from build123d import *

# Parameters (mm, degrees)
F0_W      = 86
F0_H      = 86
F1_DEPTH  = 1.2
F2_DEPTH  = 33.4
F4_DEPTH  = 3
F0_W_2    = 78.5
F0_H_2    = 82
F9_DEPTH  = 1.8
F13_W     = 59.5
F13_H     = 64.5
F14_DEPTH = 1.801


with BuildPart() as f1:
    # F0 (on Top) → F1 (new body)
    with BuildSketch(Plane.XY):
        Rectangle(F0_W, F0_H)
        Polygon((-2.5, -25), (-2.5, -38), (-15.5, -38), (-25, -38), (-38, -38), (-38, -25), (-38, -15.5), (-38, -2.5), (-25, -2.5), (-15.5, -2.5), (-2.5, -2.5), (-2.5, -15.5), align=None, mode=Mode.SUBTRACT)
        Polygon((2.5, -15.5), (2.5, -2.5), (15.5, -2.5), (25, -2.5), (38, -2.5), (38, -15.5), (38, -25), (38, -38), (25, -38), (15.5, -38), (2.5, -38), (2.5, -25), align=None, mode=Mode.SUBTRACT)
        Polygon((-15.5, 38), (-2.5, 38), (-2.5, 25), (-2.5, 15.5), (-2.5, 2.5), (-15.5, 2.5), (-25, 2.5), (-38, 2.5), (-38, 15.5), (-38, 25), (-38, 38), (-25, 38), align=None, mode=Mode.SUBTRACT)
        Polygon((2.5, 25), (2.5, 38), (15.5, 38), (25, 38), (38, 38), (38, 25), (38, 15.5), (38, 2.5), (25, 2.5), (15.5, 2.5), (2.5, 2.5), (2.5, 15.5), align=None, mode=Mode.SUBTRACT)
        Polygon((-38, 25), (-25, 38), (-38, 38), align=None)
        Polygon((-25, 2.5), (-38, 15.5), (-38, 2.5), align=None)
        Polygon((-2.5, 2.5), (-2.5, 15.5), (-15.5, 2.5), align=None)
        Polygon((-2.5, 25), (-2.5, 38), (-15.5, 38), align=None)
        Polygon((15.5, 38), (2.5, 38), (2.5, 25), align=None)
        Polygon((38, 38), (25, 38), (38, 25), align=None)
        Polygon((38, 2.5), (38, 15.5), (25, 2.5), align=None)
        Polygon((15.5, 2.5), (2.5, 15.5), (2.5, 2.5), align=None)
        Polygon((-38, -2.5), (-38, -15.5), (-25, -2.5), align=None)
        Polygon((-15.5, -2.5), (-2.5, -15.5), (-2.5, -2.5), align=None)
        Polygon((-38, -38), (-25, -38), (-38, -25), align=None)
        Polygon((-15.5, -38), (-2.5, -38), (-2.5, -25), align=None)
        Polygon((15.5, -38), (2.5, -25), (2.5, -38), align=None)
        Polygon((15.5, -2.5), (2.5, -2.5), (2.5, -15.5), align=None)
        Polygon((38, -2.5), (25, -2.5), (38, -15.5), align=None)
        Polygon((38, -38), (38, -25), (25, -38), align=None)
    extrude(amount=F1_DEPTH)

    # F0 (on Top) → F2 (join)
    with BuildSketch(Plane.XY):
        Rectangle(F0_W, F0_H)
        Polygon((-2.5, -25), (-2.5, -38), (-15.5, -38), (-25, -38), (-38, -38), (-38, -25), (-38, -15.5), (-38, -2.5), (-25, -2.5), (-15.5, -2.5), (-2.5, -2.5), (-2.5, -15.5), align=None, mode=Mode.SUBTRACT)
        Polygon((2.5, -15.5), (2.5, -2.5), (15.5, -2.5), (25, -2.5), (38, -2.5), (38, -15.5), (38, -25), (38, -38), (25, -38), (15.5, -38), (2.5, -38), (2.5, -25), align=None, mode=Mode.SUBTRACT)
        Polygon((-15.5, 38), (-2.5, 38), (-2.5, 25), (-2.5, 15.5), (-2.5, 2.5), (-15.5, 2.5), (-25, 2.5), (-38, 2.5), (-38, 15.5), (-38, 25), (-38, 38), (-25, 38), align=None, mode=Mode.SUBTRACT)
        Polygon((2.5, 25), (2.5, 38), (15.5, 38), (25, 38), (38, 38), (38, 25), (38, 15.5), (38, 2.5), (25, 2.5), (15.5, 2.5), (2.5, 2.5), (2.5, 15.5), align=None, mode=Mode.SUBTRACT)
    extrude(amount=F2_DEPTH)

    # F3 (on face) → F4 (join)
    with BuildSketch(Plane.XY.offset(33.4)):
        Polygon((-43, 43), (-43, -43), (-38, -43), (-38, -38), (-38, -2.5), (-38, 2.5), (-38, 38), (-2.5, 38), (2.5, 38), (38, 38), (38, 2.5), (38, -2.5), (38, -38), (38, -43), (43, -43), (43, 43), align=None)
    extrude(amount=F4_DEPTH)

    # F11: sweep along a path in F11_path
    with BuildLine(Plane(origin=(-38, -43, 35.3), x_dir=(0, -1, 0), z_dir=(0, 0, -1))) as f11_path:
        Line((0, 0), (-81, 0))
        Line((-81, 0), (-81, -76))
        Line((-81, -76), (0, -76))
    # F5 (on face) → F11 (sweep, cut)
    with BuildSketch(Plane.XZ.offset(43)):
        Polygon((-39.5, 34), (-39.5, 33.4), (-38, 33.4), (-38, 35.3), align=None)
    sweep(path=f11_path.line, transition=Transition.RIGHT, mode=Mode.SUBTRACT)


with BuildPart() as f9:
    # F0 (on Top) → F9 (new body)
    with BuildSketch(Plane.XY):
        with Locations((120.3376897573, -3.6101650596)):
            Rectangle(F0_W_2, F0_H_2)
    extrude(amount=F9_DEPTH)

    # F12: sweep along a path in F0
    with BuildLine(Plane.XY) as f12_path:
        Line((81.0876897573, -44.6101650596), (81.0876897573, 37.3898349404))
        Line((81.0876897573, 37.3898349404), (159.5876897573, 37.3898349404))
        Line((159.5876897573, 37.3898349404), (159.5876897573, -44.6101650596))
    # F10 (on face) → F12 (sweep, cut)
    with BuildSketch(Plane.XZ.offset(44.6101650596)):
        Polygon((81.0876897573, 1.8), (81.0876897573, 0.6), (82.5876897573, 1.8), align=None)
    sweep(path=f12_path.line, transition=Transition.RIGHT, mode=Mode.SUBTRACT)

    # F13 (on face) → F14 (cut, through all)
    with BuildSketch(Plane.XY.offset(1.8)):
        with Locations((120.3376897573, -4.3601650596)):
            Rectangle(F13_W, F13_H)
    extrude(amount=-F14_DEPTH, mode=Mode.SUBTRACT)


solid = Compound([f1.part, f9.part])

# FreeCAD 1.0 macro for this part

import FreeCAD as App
import Part
import Sketcher
from FreeCAD import Vector


def add_polygon(sketch, points):
    """Adds a closed chain of lines whose ends are joined by coincident constraints."""
    first, n = sketch.GeometryCount, len(points)
    for a, b in zip(points, points[1:] + points[:1]):
        sketch.addGeometry(Part.LineSegment(App.Vector(*a, 0), App.Vector(*b, 0)), False)
    for i in range(n):
        sketch.addConstraint(Sketcher.Constraint("Coincident", first + i, 2, first + (i + 1) % n, 1))

doc = App.newDocument("Part")
body = doc.addObject("PartDesign::Body", "Body")

# Sketch on XY plane
sketch1 = body.newObject("Sketcher::SketchObject", "Sketch")
sketch1.AttachmentSupport = (doc.getObject("XY_Plane"), [""])
sketch1.MapMode = "FlatFace"
add_polygon(sketch1, [(-43, 43), (-43, -43), (43, -43), (43, 43)])  # lines 0-3
add_polygon(sketch1, [(-2, -16), (-2, -25), (-16, -38), (-25, -38), (-38, -25), (-38, -16), (-25, -2), (-16, -2)])  # lines 4-11
add_polygon(sketch1, [(2, -25), (2, -16), (16, -2), (25, -2), (38, -16), (38, -25), (25, -38), (16, -38)])  # lines 12-19
add_polygon(sketch1, [(-25, 38), (-16, 38), (-2, 25), (-2, 16), (-16, 2), (-25, 2), (-38, 16), (-38, 25)])  # lines 20-27
add_polygon(sketch1, [(2, 16), (2, 25), (16, 38), (25, 38), (38, 25), (38, 16), (25, 2), (16, 2)])  # lines 28-35
sketch1.addConstraint([
    Sketcher.Constraint("Vertical", 0),
    Sketcher.Constraint("Horizontal", 1),
    Sketcher.Constraint("Vertical", 2),
    Sketcher.Constraint("Horizontal", 3),
    Sketcher.Constraint("Vertical", 4),
    Sketcher.Constraint("Horizontal", 6),
    Sketcher.Constraint("Vertical", 8),
    Sketcher.Constraint("Horizontal", 10),
    Sketcher.Constraint("Vertical", 12),
    Sketcher.Constraint("Horizontal", 14),
    Sketcher.Constraint("Vertical", 16),
    Sketcher.Constraint("Horizontal", 18),
    Sketcher.Constraint("Horizontal", 20),
    Sketcher.Constraint("Vertical", 22),
    Sketcher.Constraint("Horizontal", 24),
    Sketcher.Constraint("Vertical", 26),
    Sketcher.Constraint("Vertical", 28),
    Sketcher.Constraint("Horizontal", 30),
    Sketcher.Constraint("Vertical", 32),
    Sketcher.Constraint("Horizontal", 34),
    Sketcher.Constraint("Symmetric", 0, 2, 2, 2, -1, 1),
    Sketcher.Constraint("Symmetric", 18, 2, 20, 2, -1, 1),
    Sketcher.Constraint("Symmetric", 19, 2, 21, 2, -1, 1),
    Sketcher.Constraint("Symmetric", 13, 2, 23, 2, -1, 1),
    Sketcher.Constraint("Symmetric", 15, 2, 25, 2, -1, 1),
    Sketcher.Constraint("Symmetric", 4, 2, 28, 2, -1, 1),
    Sketcher.Constraint("Symmetric", 5, 2, 29, 2, -1, 1),
    Sketcher.Constraint("Symmetric", 7, 2, 31, 2, -1, 1),
    Sketcher.Constraint("Symmetric", 9, 2, 33, 2, -1, 1),
    Sketcher.Constraint("Symmetric", 11, 2, 12, 2, -2),
    Sketcher.Constraint("Symmetric", 10, 2, 13, 2, -2),
    Sketcher.Constraint("Symmetric", 8, 2, 15, 2, -2),
    Sketcher.Constraint("Symmetric", 6, 2, 17, 2, -2),
    Sketcher.Constraint("Perpendicular", 5, 7),
    Sketcher.Constraint("Perpendicular", 7, 9),
    Sketcher.Constraint("Perpendicular", 9, 11),
    Sketcher.Constraint("Perpendicular", 11, 13),
    Sketcher.Constraint("Perpendicular", 13, 15),
    Sketcher.Constraint("Perpendicular", 15, 17),
    Sketcher.Constraint("Perpendicular", 17, 19),
    Sketcher.Constraint("Perpendicular", 21, 23),
    Sketcher.Constraint("Perpendicular", 23, 25),
    Sketcher.Constraint("Perpendicular", 25, 27),
    Sketcher.Constraint("Perpendicular", 29, 31),
    Sketcher.Constraint("Perpendicular", 31, 33),
    Sketcher.Constraint("Perpendicular", 33, 35),
    Sketcher.Constraint("Horizontal", 4, 2, 7, 2),
    Sketcher.Constraint("Horizontal", 8, 2, 11, 2),
    Sketcher.Constraint("Horizontal", 16, 2, 19, 2),
    Sketcher.Constraint("Horizontal", 21, 2, 26, 2),
    Sketcher.Constraint("Horizontal", 32, 2, 35, 2),
    Sketcher.Constraint("Vertical", 6, 2, 9, 2),
    Sketcher.Constraint("Equal", 3, 0),
    Sketcher.Constraint("Equal", 34, 4),
    Sketcher.Constraint("DistanceX", 1, 1, 1, 2, 86.0),
    Sketcher.Constraint("DistanceX", 6, 2, 6, 1, 9.5),
    Sketcher.Constraint("DistanceY", 4, 2, -1, 1, 25.0),
    Sketcher.Constraint("DistanceY", 5, 2, -1, 1, 38.0),
    Sketcher.Constraint("DistanceX", 6, 2, -1, 1, 25.0),
])
pad1 = body.newObject("PartDesign::Pad", "Pad")
pad1.Profile = sketch1
pad1.Length = 1.2

# Sketch on XY plane
sketch2 = body.newObject("Sketcher::SketchObject", "Sketch001")
sketch2.AttachmentSupport = (doc.getObject("XY_Plane"), [""])
sketch2.MapMode = "FlatFace"
add_polygon(sketch2, [(-43, 43), (-43, -43), (43, -43), (43, 43)])  # lines 0-3
add_polygon(sketch2, [(-2, -2), (-2, -38), (-38, -38), (-38, -2)])  # lines 4-7
add_polygon(sketch2, [(2, -38), (2, -2), (38, -2), (38, -38)])  # lines 8-11
add_polygon(sketch2, [(-38, 38), (-2, 38), (-2, 2), (-38, 2)])  # lines 12-15
add_polygon(sketch2, [(2, 2), (2, 38), (38, 38), (38, 2)])  # lines 16-19
sketch2.addConstraint([
    Sketcher.Constraint("Vertical", 0),
    Sketcher.Constraint("Horizontal", 1),
    Sketcher.Constraint("Vertical", 2),
    Sketcher.Constraint("Horizontal", 3),
    Sketcher.Constraint("Vertical", 4),
    Sketcher.Constraint("Horizontal", 5),
    Sketcher.Constraint("Vertical", 6),
    Sketcher.Constraint("Horizontal", 7),
    Sketcher.Constraint("Vertical", 8),
    Sketcher.Constraint("Horizontal", 9),
    Sketcher.Constraint("Vertical", 10),
    Sketcher.Constraint("Horizontal", 11),
    Sketcher.Constraint("Horizontal", 12),
    Sketcher.Constraint("Vertical", 13),
    Sketcher.Constraint("Horizontal", 14),
    Sketcher.Constraint("Vertical", 15),
    Sketcher.Constraint("Vertical", 16),
    Sketcher.Constraint("Horizontal", 17),
    Sketcher.Constraint("Vertical", 18),
    Sketcher.Constraint("Horizontal", 19),
    Sketcher.Constraint("Symmetric", 0, 2, 2, 2, -1, 1),
    Sketcher.Constraint("Symmetric", 11, 2, 12, 2, -1, 1),
    Sketcher.Constraint("Symmetric", 9, 2, 14, 2, -1, 1),
    Sketcher.Constraint("Symmetric", 4, 2, 16, 2, -1, 1),
    Sketcher.Constraint("Symmetric", 6, 2, 18, 2, -1, 1),
    Sketcher.Constraint("Symmetric", 7, 2, 8, 2, -2),
    Sketcher.Constraint("Symmetric", 5, 2, 10, 2, -2),
    Sketcher.Constraint("Equal", 3, 0),
    Sketcher.Constraint("Equal", 19, 4),
    Sketcher.Constraint("DistanceX", 1, 1, 1, 2, 86.0),
    Sketcher.Constraint("DistanceX", 5, 2, 5, 1, 35.5),
    Sketcher.Constraint("DistanceY", 4, 2, -1, 1, 38.0),
    Sketcher.Constraint("DistanceX", 5, 2, -1, 1, 38.0),
])
pad2 = body.newObject("PartDesign::Pad", "Pad001")
pad2.Profile = sketch2
pad2.Length = 33.4

# Sketch on XY plane
sketch3 = body.newObject("Sketcher::SketchObject", "Sketch002")
sketch3.AttachmentSupport = (doc.getObject("XY_Plane"), [""])
sketch3.MapMode = "FlatFace"
sketch3.AttachmentOffset = App.Placement(Vector(0, 0, 33.4), App.Rotation())
add_polygon(sketch3, [(-43, 43), (-43, -43), (-38, -43), (-38, 38), (38, 38), (38, -43), (43, -43), (43, 43)])  # lines 0-7
sketch3.addConstraint([
    Sketcher.Constraint("Vertical", 0),
    Sketcher.Constraint("Horizontal", 1),
    Sketcher.Constraint("Vertical", 2),
    Sketcher.Constraint("Horizontal", 3),
    Sketcher.Constraint("Vertical", 4),
    Sketcher.Constraint("Horizontal", 5),
    Sketcher.Constraint("Vertical", 6),
    Sketcher.Constraint("Horizontal", 7),
    Sketcher.Constraint("Symmetric", 0, 2, 6, 2, -1, 1),
    Sketcher.Constraint("Symmetric", 1, 2, 4, 2, -2),
    Sketcher.Constraint("Equal", 7, 0),
    Sketcher.Constraint("DistanceX", 1, 1, 1, 2, 5.0),
    Sketcher.Constraint("DistanceX", 3, 1, 3, 2, 76.0),
    Sketcher.Constraint("DistanceY", 2, 1, 2, 2, 81.0),
])
pad3 = body.newObject("PartDesign::Pad", "Pad002")
pad3.Profile = sketch3
pad3.Length = 3

# Sketch on XZ plane
sketch4 = body.newObject("Sketcher::SketchObject", "Sketch003")
sketch4.AttachmentSupport = (doc.getObject("XZ_Plane"), [""])
sketch4.MapMode = "FlatFace"
sketch4.AttachmentOffset = App.Placement(Vector(0, 0, 43), App.Rotation())
add_polygon(sketch4, [(-39.5, 34), (-39.5, 33.4), (-38, 33.4), (-38, 35.3)])  # lines 0-3
sketch4.addConstraint([
    Sketcher.Constraint("Vertical", 0),
    Sketcher.Constraint("Horizontal", 1),
    Sketcher.Constraint("Vertical", 2),
    Sketcher.Constraint("DistanceX", 1, 1, 1, 2, 1.5),
    Sketcher.Constraint("DistanceY", 0, 2, 0, 1, 0.6),
    Sketcher.Constraint("DistanceY", 2, 1, 2, 2, 1.9),
    Sketcher.Constraint("DistanceX", 1, 2, -1, 1, 38.0),
    Sketcher.Constraint("DistanceY", -1, 1, 3, 2, 34.0),
])

# Sketch on XY plane
sketch5 = body.newObject("Sketcher::SketchObject", "Sketch004")
sketch5.AttachmentSupport = (doc.getObject("XY_Plane"), [""])
sketch5.MapMode = "FlatFace"
sketch5.AttachmentOffset = App.Placement(Vector(0, 0, 35.3), App.Rotation())
sketch5.addGeometry([
    Part.LineSegment(Vector(-38, -43, 0), Vector(-38, 38, 0)),
    Part.LineSegment(Vector(-38, 38, 0), Vector(38, 38, 0)),
    Part.LineSegment(Vector(38, 38, 0), Vector(38, -43, 0)),
], False)
sketch5.addConstraint([
    Sketcher.Constraint("Coincident", 0, 2, 1, 1),
    Sketcher.Constraint("Coincident", 1, 2, 2, 1),
    Sketcher.Constraint("Vertical", 0),
    Sketcher.Constraint("Horizontal", 1),
    Sketcher.Constraint("Vertical", 2),
    Sketcher.Constraint("Symmetric", 0, 1, 2, 2, -2),
    Sketcher.Constraint("DistanceX", 1, 1, 1, 2, 76.0),
    Sketcher.Constraint("DistanceY", 0, 1, 0, 2, 81.0),
    Sketcher.Constraint("DistanceY", 0, 1, -1, 1, 43.0),
])
doc.recompute()

subtractivepipe = body.newObject("PartDesign::SubtractivePipe", "SubtractivePipe")
subtractivepipe.Profile = sketch4
subtractivepipe.Spine = (sketch5, ["Edge1", "Edge2", "Edge3"])
subtractivepipe.Transition = "Right corner"
body2 = doc.addObject("PartDesign::Body", "Body001")

# Sketch on XY plane
sketch6 = body2.newObject("Sketcher::SketchObject", "Sketch005")
sketch6.AttachmentSupport = (doc.getObject("XY_Plane001"), [""])
sketch6.MapMode = "FlatFace"
add_polygon(sketch6, [(81, 37), (81, -45), (160, -45), (160, 37)])  # lines 0-3
sketch6.addConstraint([
    Sketcher.Constraint("Vertical", 0),
    Sketcher.Constraint("Horizontal", 1),
    Sketcher.Constraint("Vertical", 2),
    Sketcher.Constraint("Horizontal", 3),
    Sketcher.Constraint("DistanceY", 0, 2, 0, 1, 82.0),
    Sketcher.Constraint("DistanceX", 1, 1, 1, 2, 78.5),
    Sketcher.Constraint("DistanceX", -1, 1, 0, 2, 81.08769),
    Sketcher.Constraint("DistanceY", 0, 2, -1, 1, 44.610165),
])
pad4 = body2.newObject("PartDesign::Pad", "Pad003")
pad4.Profile = sketch6
pad4.Length = 1.8

# Sketch on XZ plane
sketch7 = body2.newObject("Sketcher::SketchObject", "Sketch006")
sketch7.AttachmentSupport = (doc.getObject("XZ_Plane001"), [""])
sketch7.MapMode = "FlatFace"
sketch7.AttachmentOffset = App.Placement(Vector(0, 0, 44.610165), App.Rotation())
add_polygon(sketch7, [(81.1, 1.8), (81.1, 0.6), (82.6, 1.8)])  # lines 0-2
sketch7.addConstraint([
    Sketcher.Constraint("Vertical", 0),
    Sketcher.Constraint("Horizontal", 2),
    Sketcher.Constraint("DistanceX", 2, 2, 2, 1, 1.5),
    Sketcher.Constraint("DistanceY", 0, 2, 0, 1, 1.2),
    Sketcher.Constraint("DistanceY", -1, 1, 0, 2, 0.6),
    Sketcher.Constraint("DistanceX", -1, 1, 0, 2, 81.08769),
])

# Sketch on XY plane
sketch8 = body2.newObject("Sketcher::SketchObject", "Sketch007")
sketch8.AttachmentSupport = (doc.getObject("XY_Plane001"), [""])
sketch8.MapMode = "FlatFace"
sketch8.addGeometry([
    Part.LineSegment(Vector(81, -45, 0), Vector(81, 37, 0)),
    Part.LineSegment(Vector(81, 37, 0), Vector(160, 37, 0)),
    Part.LineSegment(Vector(160, 37, 0), Vector(160, -45, 0)),
], False)
sketch8.addConstraint([
    Sketcher.Constraint("Coincident", 0, 2, 1, 1),
    Sketcher.Constraint("Coincident", 1, 2, 2, 1),
    Sketcher.Constraint("Vertical", 0),
    Sketcher.Constraint("Horizontal", 1),
    Sketcher.Constraint("Vertical", 2),
    Sketcher.Constraint("Horizontal", 0, 1, 2, 2),
    Sketcher.Constraint("DistanceY", 0, 1, 0, 2, 82.0),
    Sketcher.Constraint("DistanceX", 1, 1, 1, 2, 78.5),
    Sketcher.Constraint("DistanceX", -1, 1, 0, 1, 81.08769),
    Sketcher.Constraint("DistanceY", 0, 1, -1, 1, 44.610165),
])
doc.recompute()

subtractivepipe2 = body2.newObject("PartDesign::SubtractivePipe", "SubtractivePipe001")
subtractivepipe2.Profile = sketch7
subtractivepipe2.Spine = (sketch8, ["Edge1", "Edge2", "Edge3"])
subtractivepipe2.Transition = "Right corner"

# Sketch on XY plane
sketch9 = body2.newObject("Sketcher::SketchObject", "Sketch008")
sketch9.AttachmentSupport = (doc.getObject("XY_Plane001"), [""])
sketch9.MapMode = "FlatFace"
sketch9.AttachmentOffset = App.Placement(Vector(0, 0, 1.8), App.Rotation())
add_polygon(sketch9, [(91, 28), (91, -37), (150, -37), (150, 28)])  # lines 0-3
sketch9.addConstraint([
    Sketcher.Constraint("Vertical", 0),
    Sketcher.Constraint("Horizontal", 1),
    Sketcher.Constraint("Vertical", 2),
    Sketcher.Constraint("Horizontal", 3),
    Sketcher.Constraint("DistanceX", 1, 1, 1, 2, 59.5),
    Sketcher.Constraint("DistanceY", 0, 2, 0, 1, 64.5),
    Sketcher.Constraint("DistanceX", -1, 1, 0, 2, 90.58769),
    Sketcher.Constraint("DistanceY", 0, 2, -1, 1, 36.610165),
])
pocket1 = body2.newObject("PartDesign::Pocket", "Pocket")
pocket1.Profile = sketch9
pocket1.Type = "ThroughAll"

doc.recompute()
